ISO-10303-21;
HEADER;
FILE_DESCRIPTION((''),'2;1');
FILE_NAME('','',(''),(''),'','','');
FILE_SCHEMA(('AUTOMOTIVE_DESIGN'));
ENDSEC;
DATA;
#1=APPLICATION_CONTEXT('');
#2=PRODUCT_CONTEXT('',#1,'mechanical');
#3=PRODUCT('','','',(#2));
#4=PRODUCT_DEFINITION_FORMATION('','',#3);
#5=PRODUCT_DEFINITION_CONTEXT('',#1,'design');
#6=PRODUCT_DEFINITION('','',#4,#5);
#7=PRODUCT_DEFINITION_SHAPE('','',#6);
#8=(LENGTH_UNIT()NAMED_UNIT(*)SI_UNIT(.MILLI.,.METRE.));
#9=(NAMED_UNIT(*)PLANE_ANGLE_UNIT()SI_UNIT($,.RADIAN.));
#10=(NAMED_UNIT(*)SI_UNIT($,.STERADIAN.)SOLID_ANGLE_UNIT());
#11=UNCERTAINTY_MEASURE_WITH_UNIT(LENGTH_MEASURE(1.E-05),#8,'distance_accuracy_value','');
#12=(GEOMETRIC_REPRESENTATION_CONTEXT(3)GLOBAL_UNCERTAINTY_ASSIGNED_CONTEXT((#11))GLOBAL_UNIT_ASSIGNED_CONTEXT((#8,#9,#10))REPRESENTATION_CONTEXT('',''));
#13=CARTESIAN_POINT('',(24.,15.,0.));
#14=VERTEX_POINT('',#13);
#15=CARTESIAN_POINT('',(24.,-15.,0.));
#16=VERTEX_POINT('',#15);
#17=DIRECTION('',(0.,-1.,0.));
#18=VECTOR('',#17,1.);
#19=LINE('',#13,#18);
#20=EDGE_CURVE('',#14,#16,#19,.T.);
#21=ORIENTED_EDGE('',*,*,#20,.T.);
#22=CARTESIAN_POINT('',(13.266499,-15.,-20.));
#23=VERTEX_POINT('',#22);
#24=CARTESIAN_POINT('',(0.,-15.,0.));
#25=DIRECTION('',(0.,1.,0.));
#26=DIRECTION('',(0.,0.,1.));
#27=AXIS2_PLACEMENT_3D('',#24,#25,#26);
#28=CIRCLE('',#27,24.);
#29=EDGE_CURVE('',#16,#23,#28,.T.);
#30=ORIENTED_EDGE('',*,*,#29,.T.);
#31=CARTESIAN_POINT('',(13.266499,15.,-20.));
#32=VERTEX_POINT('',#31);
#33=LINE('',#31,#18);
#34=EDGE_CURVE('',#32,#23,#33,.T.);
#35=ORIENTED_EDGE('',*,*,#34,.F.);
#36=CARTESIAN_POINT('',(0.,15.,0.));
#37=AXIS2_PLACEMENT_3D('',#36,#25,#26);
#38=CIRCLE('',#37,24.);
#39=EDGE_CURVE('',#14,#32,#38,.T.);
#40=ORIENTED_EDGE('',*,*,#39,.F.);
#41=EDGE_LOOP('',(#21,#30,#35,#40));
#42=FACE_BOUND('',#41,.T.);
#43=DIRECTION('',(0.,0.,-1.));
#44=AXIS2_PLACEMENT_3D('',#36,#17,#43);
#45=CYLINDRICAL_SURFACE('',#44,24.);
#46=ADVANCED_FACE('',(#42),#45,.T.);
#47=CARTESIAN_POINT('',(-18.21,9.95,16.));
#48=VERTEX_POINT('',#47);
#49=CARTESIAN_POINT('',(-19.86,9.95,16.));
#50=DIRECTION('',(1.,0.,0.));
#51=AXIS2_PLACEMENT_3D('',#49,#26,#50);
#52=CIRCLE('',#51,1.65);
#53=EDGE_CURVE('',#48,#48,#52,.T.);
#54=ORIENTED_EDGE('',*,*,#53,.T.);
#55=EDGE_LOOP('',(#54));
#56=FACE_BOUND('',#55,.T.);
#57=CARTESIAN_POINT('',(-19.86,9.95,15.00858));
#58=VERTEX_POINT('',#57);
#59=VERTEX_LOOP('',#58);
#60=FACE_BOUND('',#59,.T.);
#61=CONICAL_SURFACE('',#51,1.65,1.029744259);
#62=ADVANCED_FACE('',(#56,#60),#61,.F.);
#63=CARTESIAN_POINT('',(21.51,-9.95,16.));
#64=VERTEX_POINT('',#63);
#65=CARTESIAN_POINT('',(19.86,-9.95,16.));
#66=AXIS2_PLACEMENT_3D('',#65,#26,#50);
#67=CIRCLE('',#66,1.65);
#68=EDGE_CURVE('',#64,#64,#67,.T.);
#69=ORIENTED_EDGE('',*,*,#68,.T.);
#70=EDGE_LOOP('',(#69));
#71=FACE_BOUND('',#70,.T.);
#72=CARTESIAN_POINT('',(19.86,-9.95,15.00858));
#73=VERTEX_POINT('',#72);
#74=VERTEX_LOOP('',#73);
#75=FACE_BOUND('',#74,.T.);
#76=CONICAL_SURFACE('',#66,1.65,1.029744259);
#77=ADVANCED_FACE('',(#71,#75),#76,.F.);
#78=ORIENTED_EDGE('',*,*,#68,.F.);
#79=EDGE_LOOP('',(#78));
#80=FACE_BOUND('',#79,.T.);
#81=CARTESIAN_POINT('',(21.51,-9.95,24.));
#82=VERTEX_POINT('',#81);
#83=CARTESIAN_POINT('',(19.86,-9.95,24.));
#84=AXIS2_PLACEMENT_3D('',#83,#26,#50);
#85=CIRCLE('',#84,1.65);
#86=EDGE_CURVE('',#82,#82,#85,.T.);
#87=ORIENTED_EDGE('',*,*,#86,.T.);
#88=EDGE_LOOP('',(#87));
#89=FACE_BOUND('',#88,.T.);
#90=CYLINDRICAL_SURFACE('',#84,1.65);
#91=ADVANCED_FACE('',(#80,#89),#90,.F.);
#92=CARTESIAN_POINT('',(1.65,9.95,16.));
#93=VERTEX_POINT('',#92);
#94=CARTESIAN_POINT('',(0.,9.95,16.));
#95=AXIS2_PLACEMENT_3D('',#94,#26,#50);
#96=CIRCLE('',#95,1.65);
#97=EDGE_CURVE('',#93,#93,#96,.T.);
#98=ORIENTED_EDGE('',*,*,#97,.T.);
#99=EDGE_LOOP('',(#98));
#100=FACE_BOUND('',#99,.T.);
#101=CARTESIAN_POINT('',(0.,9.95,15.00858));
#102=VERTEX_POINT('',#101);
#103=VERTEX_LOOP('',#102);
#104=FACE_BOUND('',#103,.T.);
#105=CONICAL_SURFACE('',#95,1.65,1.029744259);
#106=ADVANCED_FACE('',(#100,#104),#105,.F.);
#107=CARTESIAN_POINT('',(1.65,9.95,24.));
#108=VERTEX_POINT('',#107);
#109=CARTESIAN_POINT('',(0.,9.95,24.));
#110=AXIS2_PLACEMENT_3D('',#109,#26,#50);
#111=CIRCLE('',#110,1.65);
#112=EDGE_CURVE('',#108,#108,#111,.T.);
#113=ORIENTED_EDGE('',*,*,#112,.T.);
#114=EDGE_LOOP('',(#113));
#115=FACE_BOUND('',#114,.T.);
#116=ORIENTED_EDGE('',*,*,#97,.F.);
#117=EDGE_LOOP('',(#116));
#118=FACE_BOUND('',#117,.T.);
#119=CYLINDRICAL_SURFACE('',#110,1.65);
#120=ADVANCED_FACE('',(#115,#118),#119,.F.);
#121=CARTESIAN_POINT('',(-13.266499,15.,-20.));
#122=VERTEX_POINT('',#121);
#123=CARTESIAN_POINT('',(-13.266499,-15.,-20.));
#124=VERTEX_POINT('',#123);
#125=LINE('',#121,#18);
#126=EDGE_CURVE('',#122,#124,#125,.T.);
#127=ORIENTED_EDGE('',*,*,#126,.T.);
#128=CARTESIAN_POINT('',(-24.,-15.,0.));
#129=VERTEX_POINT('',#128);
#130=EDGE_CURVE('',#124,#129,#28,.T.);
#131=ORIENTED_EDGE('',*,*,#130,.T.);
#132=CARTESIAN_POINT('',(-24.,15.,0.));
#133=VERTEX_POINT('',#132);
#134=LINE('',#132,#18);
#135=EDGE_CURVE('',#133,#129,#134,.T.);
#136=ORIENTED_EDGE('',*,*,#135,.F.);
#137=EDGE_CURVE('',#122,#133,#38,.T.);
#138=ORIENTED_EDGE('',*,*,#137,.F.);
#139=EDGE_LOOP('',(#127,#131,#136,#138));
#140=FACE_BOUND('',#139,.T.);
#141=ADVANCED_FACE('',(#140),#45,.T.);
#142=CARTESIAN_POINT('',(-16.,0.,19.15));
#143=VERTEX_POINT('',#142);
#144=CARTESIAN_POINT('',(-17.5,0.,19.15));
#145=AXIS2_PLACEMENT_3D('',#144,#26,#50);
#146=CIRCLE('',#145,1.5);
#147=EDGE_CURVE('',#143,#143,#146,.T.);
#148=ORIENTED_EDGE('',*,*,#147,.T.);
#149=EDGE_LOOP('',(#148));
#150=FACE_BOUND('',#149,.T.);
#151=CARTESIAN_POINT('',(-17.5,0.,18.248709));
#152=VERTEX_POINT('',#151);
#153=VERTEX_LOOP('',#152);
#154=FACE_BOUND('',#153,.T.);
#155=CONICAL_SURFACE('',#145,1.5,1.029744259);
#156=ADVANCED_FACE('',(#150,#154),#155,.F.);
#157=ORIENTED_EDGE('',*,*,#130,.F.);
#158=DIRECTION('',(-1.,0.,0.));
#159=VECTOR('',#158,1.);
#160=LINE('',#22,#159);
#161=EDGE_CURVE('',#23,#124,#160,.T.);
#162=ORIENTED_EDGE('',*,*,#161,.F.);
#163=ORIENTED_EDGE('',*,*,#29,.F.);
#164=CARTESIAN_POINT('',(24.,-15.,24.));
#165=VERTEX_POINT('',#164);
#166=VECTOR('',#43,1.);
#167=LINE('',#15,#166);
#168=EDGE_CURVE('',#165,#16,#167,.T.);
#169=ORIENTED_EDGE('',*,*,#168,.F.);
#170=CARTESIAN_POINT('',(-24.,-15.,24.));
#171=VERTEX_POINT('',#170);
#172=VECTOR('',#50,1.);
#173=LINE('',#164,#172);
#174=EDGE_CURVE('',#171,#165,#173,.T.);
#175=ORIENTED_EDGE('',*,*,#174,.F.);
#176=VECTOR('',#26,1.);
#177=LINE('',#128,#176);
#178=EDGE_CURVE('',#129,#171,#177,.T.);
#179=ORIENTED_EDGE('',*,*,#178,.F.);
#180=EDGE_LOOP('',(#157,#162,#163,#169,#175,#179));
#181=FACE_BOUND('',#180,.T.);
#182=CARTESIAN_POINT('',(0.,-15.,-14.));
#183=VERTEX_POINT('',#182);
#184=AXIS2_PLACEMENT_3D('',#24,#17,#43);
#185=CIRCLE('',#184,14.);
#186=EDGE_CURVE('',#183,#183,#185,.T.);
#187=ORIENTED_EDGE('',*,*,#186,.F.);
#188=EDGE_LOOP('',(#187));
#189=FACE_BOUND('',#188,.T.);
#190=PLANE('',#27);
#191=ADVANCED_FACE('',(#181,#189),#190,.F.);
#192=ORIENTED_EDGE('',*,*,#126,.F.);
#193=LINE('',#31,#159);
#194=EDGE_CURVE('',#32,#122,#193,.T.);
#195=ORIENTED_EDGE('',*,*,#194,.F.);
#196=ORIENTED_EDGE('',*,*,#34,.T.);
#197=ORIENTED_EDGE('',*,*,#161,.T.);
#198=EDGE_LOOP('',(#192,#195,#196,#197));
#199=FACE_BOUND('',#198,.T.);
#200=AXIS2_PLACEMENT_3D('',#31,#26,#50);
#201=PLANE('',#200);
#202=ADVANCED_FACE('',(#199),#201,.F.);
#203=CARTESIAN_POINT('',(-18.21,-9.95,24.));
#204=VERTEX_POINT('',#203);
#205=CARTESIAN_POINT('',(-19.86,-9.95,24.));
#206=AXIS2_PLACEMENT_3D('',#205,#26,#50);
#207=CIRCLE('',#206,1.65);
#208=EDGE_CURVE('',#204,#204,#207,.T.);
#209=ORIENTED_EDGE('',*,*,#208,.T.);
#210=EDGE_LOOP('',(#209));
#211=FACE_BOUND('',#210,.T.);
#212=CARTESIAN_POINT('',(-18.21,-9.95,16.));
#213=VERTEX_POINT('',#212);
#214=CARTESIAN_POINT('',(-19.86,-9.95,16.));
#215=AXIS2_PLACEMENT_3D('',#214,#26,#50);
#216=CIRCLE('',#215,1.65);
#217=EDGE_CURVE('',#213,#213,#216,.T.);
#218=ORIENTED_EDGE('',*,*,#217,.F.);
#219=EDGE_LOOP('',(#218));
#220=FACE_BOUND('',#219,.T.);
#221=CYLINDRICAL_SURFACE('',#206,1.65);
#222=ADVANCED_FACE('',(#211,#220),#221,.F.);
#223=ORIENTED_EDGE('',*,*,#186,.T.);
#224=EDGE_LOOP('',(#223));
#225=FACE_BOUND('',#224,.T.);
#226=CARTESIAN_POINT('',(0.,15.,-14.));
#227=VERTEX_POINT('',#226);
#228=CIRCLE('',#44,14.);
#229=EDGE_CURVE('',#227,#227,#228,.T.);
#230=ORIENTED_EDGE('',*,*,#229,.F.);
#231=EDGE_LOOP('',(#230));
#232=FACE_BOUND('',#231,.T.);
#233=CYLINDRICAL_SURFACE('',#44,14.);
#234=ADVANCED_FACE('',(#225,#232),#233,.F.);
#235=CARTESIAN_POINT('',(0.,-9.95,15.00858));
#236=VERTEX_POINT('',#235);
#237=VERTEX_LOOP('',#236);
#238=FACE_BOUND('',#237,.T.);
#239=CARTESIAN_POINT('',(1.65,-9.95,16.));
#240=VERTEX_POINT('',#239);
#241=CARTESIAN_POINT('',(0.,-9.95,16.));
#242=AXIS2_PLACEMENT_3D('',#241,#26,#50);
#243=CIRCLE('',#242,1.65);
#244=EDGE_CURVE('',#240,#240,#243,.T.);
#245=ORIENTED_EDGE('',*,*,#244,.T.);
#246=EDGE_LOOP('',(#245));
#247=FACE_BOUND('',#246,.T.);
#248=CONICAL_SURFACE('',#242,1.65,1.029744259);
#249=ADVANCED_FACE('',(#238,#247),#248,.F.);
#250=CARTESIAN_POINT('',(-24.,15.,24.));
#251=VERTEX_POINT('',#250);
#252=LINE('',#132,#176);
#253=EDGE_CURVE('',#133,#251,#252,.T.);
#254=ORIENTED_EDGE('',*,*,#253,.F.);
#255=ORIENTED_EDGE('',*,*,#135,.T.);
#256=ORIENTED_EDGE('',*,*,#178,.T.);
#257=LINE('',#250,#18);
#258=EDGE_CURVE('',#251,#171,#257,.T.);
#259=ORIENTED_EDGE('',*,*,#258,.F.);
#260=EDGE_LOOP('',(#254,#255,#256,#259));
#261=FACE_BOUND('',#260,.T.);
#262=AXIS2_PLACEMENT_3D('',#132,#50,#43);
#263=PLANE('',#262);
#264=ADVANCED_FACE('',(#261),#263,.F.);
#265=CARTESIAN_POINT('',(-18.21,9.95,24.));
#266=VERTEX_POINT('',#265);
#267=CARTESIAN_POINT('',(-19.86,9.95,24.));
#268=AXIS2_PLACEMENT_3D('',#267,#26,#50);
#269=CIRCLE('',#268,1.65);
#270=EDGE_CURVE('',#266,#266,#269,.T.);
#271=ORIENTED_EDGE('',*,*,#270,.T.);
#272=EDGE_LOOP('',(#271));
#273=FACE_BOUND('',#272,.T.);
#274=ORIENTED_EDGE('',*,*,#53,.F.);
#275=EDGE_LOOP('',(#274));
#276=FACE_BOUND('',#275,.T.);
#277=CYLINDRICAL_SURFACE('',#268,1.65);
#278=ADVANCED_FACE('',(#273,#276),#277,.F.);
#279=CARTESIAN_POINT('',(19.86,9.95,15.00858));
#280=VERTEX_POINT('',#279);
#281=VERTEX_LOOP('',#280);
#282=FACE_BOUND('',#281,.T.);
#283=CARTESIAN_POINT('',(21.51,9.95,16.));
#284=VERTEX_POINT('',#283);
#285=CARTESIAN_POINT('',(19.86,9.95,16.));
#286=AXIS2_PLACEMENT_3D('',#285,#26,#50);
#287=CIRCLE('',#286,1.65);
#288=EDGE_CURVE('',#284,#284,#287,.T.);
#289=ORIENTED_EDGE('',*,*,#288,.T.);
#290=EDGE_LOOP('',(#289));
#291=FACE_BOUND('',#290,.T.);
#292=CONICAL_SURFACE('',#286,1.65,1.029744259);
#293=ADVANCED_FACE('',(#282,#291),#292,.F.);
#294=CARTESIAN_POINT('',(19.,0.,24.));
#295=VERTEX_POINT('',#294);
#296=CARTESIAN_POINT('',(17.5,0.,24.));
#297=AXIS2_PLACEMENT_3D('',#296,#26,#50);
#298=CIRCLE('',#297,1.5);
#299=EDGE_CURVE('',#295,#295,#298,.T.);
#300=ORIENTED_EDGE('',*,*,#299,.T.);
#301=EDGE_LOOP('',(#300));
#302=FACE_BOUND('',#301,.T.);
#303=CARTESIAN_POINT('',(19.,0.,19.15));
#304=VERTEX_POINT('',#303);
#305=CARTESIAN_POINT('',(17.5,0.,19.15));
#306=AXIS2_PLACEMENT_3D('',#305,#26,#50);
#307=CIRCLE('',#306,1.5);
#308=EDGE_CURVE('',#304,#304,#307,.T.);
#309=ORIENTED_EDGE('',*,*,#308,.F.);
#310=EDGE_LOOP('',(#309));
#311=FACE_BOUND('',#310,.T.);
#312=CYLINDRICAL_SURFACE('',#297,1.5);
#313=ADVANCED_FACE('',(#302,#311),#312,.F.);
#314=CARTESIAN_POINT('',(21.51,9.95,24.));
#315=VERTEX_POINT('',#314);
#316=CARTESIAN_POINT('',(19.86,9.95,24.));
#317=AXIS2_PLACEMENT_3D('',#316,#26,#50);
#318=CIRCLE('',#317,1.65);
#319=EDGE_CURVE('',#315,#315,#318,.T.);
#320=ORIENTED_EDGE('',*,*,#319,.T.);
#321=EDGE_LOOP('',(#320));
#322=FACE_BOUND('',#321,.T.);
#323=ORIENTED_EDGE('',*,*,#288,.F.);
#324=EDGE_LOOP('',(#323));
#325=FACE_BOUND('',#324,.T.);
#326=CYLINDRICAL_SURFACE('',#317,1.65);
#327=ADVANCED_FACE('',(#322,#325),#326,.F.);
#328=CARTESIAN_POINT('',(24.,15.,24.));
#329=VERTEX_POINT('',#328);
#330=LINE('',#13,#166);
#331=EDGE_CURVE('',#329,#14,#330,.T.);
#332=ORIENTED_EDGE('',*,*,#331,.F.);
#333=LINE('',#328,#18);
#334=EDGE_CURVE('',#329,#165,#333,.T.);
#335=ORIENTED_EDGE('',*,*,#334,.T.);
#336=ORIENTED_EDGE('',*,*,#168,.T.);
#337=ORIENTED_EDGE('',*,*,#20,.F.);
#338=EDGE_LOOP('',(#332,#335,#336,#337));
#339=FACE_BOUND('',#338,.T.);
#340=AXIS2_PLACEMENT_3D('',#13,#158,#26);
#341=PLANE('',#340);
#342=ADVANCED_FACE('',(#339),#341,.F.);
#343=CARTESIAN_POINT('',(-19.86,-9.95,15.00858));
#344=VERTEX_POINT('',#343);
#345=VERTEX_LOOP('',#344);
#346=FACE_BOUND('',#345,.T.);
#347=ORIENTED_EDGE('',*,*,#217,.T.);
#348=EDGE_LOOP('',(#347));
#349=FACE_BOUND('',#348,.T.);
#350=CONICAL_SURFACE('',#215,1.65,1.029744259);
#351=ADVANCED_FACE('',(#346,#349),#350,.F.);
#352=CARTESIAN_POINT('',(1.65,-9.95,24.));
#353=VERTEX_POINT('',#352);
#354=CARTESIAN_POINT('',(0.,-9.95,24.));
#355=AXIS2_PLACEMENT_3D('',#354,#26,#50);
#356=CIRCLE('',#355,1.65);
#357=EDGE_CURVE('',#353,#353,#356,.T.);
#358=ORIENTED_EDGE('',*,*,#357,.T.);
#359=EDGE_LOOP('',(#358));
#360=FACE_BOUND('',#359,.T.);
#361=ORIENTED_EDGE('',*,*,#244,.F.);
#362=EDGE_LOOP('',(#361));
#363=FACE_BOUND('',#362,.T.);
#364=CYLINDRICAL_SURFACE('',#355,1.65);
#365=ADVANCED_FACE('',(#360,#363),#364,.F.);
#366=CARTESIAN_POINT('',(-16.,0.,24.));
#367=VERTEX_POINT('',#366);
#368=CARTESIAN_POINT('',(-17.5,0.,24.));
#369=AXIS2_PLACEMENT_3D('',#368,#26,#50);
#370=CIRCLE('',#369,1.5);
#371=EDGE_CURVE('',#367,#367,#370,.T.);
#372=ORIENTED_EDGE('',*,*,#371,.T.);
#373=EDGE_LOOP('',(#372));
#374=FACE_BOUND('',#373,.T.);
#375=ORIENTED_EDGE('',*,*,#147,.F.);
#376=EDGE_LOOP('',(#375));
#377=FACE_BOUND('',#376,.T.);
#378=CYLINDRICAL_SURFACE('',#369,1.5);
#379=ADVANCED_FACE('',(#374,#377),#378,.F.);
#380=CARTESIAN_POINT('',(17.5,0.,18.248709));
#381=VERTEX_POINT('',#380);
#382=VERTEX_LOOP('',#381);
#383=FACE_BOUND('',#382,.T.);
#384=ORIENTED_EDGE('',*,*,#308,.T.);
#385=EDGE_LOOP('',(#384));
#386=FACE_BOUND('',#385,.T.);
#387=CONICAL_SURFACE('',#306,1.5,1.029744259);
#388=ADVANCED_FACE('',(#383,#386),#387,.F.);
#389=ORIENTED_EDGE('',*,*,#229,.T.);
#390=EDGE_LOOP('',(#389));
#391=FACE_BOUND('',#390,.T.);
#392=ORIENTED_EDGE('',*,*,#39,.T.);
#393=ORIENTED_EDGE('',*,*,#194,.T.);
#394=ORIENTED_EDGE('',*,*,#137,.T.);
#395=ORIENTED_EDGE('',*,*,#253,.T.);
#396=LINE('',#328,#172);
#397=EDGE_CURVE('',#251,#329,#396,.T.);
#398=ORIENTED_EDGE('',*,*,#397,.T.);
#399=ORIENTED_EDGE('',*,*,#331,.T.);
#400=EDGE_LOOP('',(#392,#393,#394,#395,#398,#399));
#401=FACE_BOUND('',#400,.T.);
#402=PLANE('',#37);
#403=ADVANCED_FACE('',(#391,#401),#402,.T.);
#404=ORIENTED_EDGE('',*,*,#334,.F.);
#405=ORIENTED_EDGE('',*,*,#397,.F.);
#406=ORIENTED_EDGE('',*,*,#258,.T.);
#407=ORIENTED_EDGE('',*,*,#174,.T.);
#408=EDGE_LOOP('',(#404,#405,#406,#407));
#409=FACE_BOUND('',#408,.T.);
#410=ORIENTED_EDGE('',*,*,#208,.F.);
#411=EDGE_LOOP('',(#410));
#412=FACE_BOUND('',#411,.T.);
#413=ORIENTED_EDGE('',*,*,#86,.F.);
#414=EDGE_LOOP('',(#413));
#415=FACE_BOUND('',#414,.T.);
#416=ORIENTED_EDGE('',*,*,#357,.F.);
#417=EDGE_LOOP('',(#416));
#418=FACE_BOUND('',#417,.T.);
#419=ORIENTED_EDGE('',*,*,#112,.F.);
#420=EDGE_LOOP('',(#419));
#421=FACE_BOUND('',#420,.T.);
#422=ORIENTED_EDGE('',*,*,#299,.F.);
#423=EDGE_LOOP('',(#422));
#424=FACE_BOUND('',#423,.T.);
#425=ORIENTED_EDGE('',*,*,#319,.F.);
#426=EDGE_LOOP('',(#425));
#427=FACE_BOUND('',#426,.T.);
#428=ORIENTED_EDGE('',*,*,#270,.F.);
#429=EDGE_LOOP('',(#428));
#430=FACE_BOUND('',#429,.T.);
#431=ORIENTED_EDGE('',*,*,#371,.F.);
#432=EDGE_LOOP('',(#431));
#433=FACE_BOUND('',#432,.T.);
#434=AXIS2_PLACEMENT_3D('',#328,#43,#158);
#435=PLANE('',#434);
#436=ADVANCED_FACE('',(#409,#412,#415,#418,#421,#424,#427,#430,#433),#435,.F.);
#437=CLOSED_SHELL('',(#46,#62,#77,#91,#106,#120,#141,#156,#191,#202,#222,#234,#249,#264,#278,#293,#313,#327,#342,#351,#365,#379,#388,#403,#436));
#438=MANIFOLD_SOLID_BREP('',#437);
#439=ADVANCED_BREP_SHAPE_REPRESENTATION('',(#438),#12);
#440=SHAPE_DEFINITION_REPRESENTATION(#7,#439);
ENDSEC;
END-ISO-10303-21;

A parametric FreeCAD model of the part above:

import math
import FreeCAD as App
import Part
import Sketcher
Q = App.Units.Quantity

doc = App.newDocument("Part")
params = doc.addObject("Spreadsheet::Sheet", "Params")
for row, (alias, value) in enumerate([
    ("sketch1_radius", "24 mm"),
    ("sketch1_height", "24 mm"),
    ("pad1_length", "30 mm"),
    ("sketch2_diameter", "3.3 mm"),
    ("hole_diameter", "3.3 mm"),
    ("hole_depth", "8 mm"),
    ("sketch3_diameter", "3 mm"),
    ("hole2_diameter", "3 mm"),
    ("hole2_depth", "4.85 mm"),
    ("sketch4_diameter", "28 mm"),
    ("pocket1_length", "30 mm"),
], start=1):
    params.set(f"A{row}", alias)
    params.set(f"B{row}", "=" + value)
    params.setAlias(f"B{row}", alias)

body = doc.addObject("PartDesign::Body", "Body")

# Sketch on XZ plane
sketch1 = body.newObject("Sketcher::SketchObject", "Sketch")
sketch1.AttachmentSupport = (doc.getObject("XZ_Plane"), [""])
sketch1.MapMode = "FlatFace"
sketch1.addGeometry(Part.LineSegment(App.Vector(13.266499, -20, 0), App.Vector(-13.266499, -20, 0)), False)
sketch1.addGeometry(Part.ArcOfCircle(Part.Circle(App.Vector(0, 0, 0), App.Vector(0, 0, 1), 24), math.radians(180), math.radians(236.44269)), False)
sketch1.addGeometry(Part.LineSegment(App.Vector(-24, 0, 0), App.Vector(-24, 24, 0)), False)
sketch1.addGeometry(Part.LineSegment(App.Vector(-24, 24, 0), App.Vector(24, 24, 0)), False)
sketch1.addGeometry(Part.LineSegment(App.Vector(24, 24, 0), App.Vector(24, 0, 0)), False)
sketch1.addGeometry(Part.ArcOfCircle(Part.Circle(App.Vector(0, 0, 0), App.Vector(0, 0, 1), 24), math.radians(-56.44269), math.radians(0)), False)
sketch1.addConstraint(Sketcher.Constraint("Coincident", 0, 2, 1, 2))
sketch1.addConstraint(Sketcher.Constraint("Tangent", 1, 1, 2, 1))
sketch1.addConstraint(Sketcher.Constraint("Coincident", 2, 2, 3, 1))
sketch1.addConstraint(Sketcher.Constraint("Coincident", 3, 2, 4, 1))
sketch1.addConstraint(Sketcher.Constraint("Tangent", 4, 2, 5, 2))
sketch1.addConstraint(Sketcher.Constraint("Coincident", 5, 1, 0, 1))
sketch1.addConstraint(Sketcher.Constraint("Horizontal", 0))
sketch1.addConstraint(Sketcher.Constraint("Vertical", 2))
sketch1.addConstraint(Sketcher.Constraint("Horizontal", 3))
sketch1.addConstraint(Sketcher.Constraint("Vertical", 4))
sketch1.addConstraint(Sketcher.Constraint("Coincident", 1, 3, -1, 1))
sketch1.addConstraint(Sketcher.Constraint("Coincident", 5, 3, -1, 1))
sketch1.addConstraint(Sketcher.Constraint("Equal", 1, 5))
sketch1.addConstraint(Sketcher.Constraint("Radius", 1, Q("24 mm")))
sketch1.addConstraint(Sketcher.Constraint("DistanceY", 2, 1, 2, 2, Q("24 mm")))
sketch1.addConstraint(Sketcher.Constraint("DistanceY", 0, 2, -1, 1, Q("20 mm")))
sketch1.setExpression("Constraints[13]", "Params.sketch1_radius")
sketch1.setExpression("Constraints[14]", "Params.sketch1_height")
pad1 = body.newObject("PartDesign::Pad", "Pad")
pad1.Profile = sketch1
pad1.setExpression("Length", "Params.pad1_length")
pad1.Midplane = True

# Sketch on XY plane
sketch2 = body.newObject("Sketcher::SketchObject", "Sketch001")
sketch2.AttachmentSupport = (doc.getObject("XY_Plane"), [""])
sketch2.MapMode = "FlatFace"
sketch2.AttachmentOffset = App.Placement(App.Vector(0, 0, 24), App.Rotation())
sketch2.addGeometry(Part.Circle(App.Vector(-19.86, 9.95, 0), App.Vector(0, 0, 1), 1.65), False)
sketch2.addGeometry(Part.Circle(App.Vector(0, 9.95, 0), App.Vector(0, 0, 1), 1.65), False)
sketch2.addGeometry(Part.Circle(App.Vector(19.86, 9.95, 0), App.Vector(0, 0, 1), 1.65), False)
sketch2.addGeometry(Part.Circle(App.Vector(19.86, -9.95, 0), App.Vector(0, 0, 1), 1.65), False)
sketch2.addGeometry(Part.Circle(App.Vector(0, -9.95, 0), App.Vector(0, 0, 1), 1.65), False)
sketch2.addGeometry(Part.Circle(App.Vector(-19.86, -9.95, 0), App.Vector(0, 0, 1), 1.65), False)
sketch2.addConstraint(Sketcher.Constraint("Equal", 0, 1))
sketch2.addConstraint(Sketcher.Constraint("Equal", 1, 2))
sketch2.addConstraint(Sketcher.Constraint("Equal", 2, 3))
sketch2.addConstraint(Sketcher.Constraint("Equal", 3, 4))
sketch2.addConstraint(Sketcher.Constraint("Equal", 4, 5))
sketch2.addConstraint(Sketcher.Constraint("Symmetric", 0, 3, 3, 3, -1, 1))
sketch2.addConstraint(Sketcher.Constraint("Symmetric", 1, 3, 4, 3, -1, 1))
sketch2.addConstraint(Sketcher.Constraint("Symmetric", 2, 3, 5, 3, -1, 1))
sketch2.addConstraint(Sketcher.Constraint("Symmetric", 0, 3, 2, 3, -2))
sketch2.addConstraint(Sketcher.Constraint("PointOnObject", 1, 3, -2))
sketch2.addConstraint(Sketcher.Constraint("Horizontal", 0, 3, 1, 3))
sketch2.addConstraint(Sketcher.Constraint("Diameter", 0, Q("3.3 mm")))
sketch2.addConstraint(Sketcher.Constraint("DistanceY", 3, 3, 2, 3, Q("19.9 mm")))
sketch2.addConstraint(Sketcher.Constraint("DistanceX", 0, 3, -1, 1, Q("19.86 mm")))
sketch2.setExpression("Constraints[11]", "Params.sketch2_diameter")
doc.recompute()
hole = body.newObject("PartDesign::Hole", "Hole")
hole.Profile = sketch2
hole.ThreadType = "None"
hole.setExpression("Diameter", "Params.hole_diameter")
hole.DepthType = "Dimension"
hole.setExpression("Depth", "Params.hole_depth")
hole.DrillPoint = "Angled"
hole.DrillPointAngle = 118

# Sketch on XY plane
sketch3 = body.newObject("Sketcher::SketchObject", "Sketch002")
sketch3.AttachmentSupport = (doc.getObject("XY_Plane"), [""])
sketch3.MapMode = "FlatFace"
sketch3.AttachmentOffset = App.Placement(App.Vector(0, 0, 24), App.Rotation())
sketch3.addGeometry(Part.Circle(App.Vector(-17.5, 0, 0), App.Vector(0, 0, 1), 1.5), False)
sketch3.addGeometry(Part.Circle(App.Vector(17.5, 0, 0), App.Vector(0, 0, 1), 1.5), False)
sketch3.addConstraint(Sketcher.Constraint("Equal", 0, 1))
sketch3.addConstraint(Sketcher.Constraint("Symmetric", 0, 3, 1, 3, -1, 1))
sketch3.addConstraint(Sketcher.Constraint("PointOnObject", 0, 3, -1))
sketch3.addConstraint(Sketcher.Constraint("Diameter", 0, Q("3 mm")))
sketch3.addConstraint(Sketcher.Constraint("DistanceX", 0, 3, 1, 3, Q("35 mm")))
sketch3.setExpression("Constraints[3]", "Params.sketch3_diameter")
doc.recompute()
hole2 = body.newObject("PartDesign::Hole", "Hole001")
hole2.Profile = sketch3
hole2.ThreadType = "None"
hole2.setExpression("Diameter", "Params.hole2_diameter")
hole2.DepthType = "Dimension"
hole2.setExpression("Depth", "Params.hole2_depth")
hole2.DrillPoint = "Angled"
hole2.DrillPointAngle = 118

# Sketch on XZ plane
sketch4 = body.newObject("Sketcher::SketchObject", "Sketch003")
sketch4.AttachmentSupport = (doc.getObject("XZ_Plane"), [""])
sketch4.MapMode = "FlatFace"
sketch4.AttachmentOffset = App.Placement(App.Vector(0, 0, 15), App.Rotation())
sketch4.addGeometry(Part.Circle(App.Vector(0, 0, 0), App.Vector(0, 0, 1), 14), False)
sketch4.addConstraint(Sketcher.Constraint("Coincident", 0, 3, -1, 1))
sketch4.addConstraint(Sketcher.Constraint("Diameter", 0, Q("28 mm")))
sketch4.setExpression("Constraints[1]", "Params.sketch4_diameter")
pocket1 = body.newObject("PartDesign::Pocket", "Pocket")
pocket1.Profile = sketch4
pocket1.setExpression("Length", "Params.pocket1_length")

doc.recompute()
